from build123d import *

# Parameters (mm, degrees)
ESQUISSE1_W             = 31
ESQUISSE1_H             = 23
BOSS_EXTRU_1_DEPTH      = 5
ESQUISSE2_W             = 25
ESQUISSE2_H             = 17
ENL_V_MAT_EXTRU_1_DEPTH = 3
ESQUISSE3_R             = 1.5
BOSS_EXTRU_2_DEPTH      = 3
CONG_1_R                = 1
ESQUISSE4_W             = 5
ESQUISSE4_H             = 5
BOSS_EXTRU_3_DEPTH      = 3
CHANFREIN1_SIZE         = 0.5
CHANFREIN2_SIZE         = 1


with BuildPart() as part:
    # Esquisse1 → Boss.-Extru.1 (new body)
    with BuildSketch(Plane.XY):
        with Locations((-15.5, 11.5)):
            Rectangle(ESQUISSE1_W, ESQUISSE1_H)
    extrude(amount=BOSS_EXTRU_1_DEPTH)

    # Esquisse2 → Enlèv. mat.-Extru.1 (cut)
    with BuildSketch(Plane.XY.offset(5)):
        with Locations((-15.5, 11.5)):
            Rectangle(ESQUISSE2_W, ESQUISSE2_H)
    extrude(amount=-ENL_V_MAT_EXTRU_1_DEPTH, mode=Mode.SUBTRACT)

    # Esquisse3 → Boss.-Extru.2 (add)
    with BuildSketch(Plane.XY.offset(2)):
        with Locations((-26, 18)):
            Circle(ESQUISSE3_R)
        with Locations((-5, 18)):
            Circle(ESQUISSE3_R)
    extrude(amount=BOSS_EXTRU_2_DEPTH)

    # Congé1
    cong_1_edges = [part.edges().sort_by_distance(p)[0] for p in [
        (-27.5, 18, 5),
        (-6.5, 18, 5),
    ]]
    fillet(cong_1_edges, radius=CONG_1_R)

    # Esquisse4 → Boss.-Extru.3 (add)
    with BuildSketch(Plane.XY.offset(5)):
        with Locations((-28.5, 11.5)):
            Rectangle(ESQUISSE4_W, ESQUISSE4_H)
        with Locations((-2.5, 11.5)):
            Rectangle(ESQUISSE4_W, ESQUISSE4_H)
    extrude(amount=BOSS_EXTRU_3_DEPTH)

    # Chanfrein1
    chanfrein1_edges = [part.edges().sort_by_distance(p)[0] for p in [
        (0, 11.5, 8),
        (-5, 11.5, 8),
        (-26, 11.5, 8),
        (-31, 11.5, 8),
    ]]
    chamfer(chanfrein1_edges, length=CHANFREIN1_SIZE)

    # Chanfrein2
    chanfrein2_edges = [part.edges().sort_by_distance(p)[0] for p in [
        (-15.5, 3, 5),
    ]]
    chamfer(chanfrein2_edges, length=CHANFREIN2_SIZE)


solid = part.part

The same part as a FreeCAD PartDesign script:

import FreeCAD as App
import Part
import Sketcher

V = App.Vector


def edges_at(feature, points):
    """Names of the edges that pass closest to the given points."""
    edges = feature.Shape.Edges
    near = lambda p: min(range(len(edges)), key=lambda i: edges[i].distToShape(Part.Vertex(*p))[0])
    return sorted({f"Edge{near(p) + 1}" for p in points})

doc = App.newDocument("Part")
params = doc.addObject("Spreadsheet::Sheet", "Params")
for row, (alias, value) in enumerate([
    ("sketch1_width", "31 mm"),
    ("sketch1_height", "23 mm"),
    ("pad1_length", "5 mm"),
    ("sketch2_width", "25 mm"),
    ("sketch2_height", "17 mm"),
    ("pocket1_length", "3 mm"),
    ("sketch3_diameter", "3 mm"),
    ("pad2_length", "3 mm"),
    ("fillet_radius", "1 mm"),
    ("sketch4_width", "5 mm"),
    ("pad3_length", "3 mm"),
    ("chamfer_size", "0.5 mm"),
    ("chamfer2_size", "1 mm"),
], start=1):
    params.set(f"A{row}", alias)
    params.set(f"B{row}", "=" + value)
    params.setAlias(f"B{row}", alias)

body = doc.addObject("PartDesign::Body", "Body")

# Sketch on XY plane
sketch1 = body.newObject("Sketcher::SketchObject", "Sketch")
sketch1.AttachmentSupport = (doc.getObject("XY_Plane"), [""])
sketch1.MapMode = "FlatFace"
sketch1.addGeometry([
    Part.LineSegment(V(-31, 23, 0), V(-31, 0, 0)),
    Part.LineSegment(V(-31, 0, 0), V(0, 0, 0)),
    Part.LineSegment(V(0, 0, 0), V(0, 23, 0)),
    Part.LineSegment(V(0, 23, 0), V(-31, 23, 0)),
], False)
sketch1.addConstraint([
    Sketcher.Constraint("Coincident", 0, 2, 1, 1),
    Sketcher.Constraint("Coincident", 1, 2, 2, 1),
    Sketcher.Constraint("Coincident", 2, 2, 3, 1),
    Sketcher.Constraint("Coincident", 3, 2, 0, 1),
    Sketcher.Constraint("Vertical", 0),
    Sketcher.Constraint("Horizontal", 1),
    Sketcher.Constraint("Vertical", 2),
    Sketcher.Constraint("Horizontal", 3),
    Sketcher.Constraint("Coincident", 1, 2, -1, 1),
    Sketcher.Constraint("DistanceX", 1, 1, 1, 2, 31.0),
    Sketcher.Constraint("DistanceY", 0, 2, 0, 1, 23.0),
])
sketch1.setExpression("Constraints[9]", "Params.sketch1_width")
sketch1.setExpression("Constraints[10]", "Params.sketch1_height")
pad1 = body.newObject("PartDesign::Pad", "Pad")
pad1.Profile = sketch1
pad1.setExpression("Length", "Params.pad1_length")

# Sketch on XY plane
sketch2 = body.newObject("Sketcher::SketchObject", "Sketch001")
sketch2.AttachmentSupport = (doc.getObject("XY_Plane"), [""])
sketch2.MapMode = "FlatFace"
sketch2.AttachmentOffset = App.Placement(V(0, 0, 5), App.Rotation())
sketch2.addGeometry([
    Part.LineSegment(V(-28, 20, 0), V(-28, 3, 0)),
    Part.LineSegment(V(-28, 3, 0), V(-3, 3, 0)),
    Part.LineSegment(V(-3, 3, 0), V(-3, 20, 0)),
    Part.LineSegment(V(-3, 20, 0), V(-28, 20, 0)),
], False)
sketch2.addConstraint([
    Sketcher.Constraint("Coincident", 0, 2, 1, 1),
    Sketcher.Constraint("Coincident", 1, 2, 2, 1),
    Sketcher.Constraint("Coincident", 2, 2, 3, 1),
    Sketcher.Constraint("Coincident", 3, 2, 0, 1),
    Sketcher.Constraint("Vertical", 0),
    Sketcher.Constraint("Horizontal", 1),
    Sketcher.Constraint("Vertical", 2),
    Sketcher.Constraint("Horizontal", 3),
    Sketcher.Constraint("DistanceX", 1, 1, 1, 2, 25.0),
    Sketcher.Constraint("DistanceY", 0, 2, 0, 1, 17.0),
    Sketcher.Constraint("DistanceX", 0, 2, -1, 1, 28.0),
    Sketcher.Constraint("DistanceY", -1, 1, 0, 2, 3.0),
])
sketch2.setExpression("Constraints[8]", "Params.sketch2_width")
sketch2.setExpression("Constraints[9]", "Params.sketch2_height")
pocket1 = body.newObject("PartDesign::Pocket", "Pocket")
pocket1.Profile = sketch2
pocket1.setExpression("Length", "Params.pocket1_length")

# Sketch on XY plane
sketch3 = body.newObject("Sketcher::SketchObject", "Sketch002")
sketch3.AttachmentSupport = (doc.getObject("XY_Plane"), [""])
sketch3.MapMode = "FlatFace"
sketch3.AttachmentOffset = App.Placement(V(0, 0, 2), App.Rotation())
sketch3.addGeometry([
    Part.Circle(V(-26, 18, 0), V(0, 0, 1), 1.5),
    Part.Circle(V(-5, 18, 0), V(0, 0, 1), 1.5),
], False)
sketch3.addConstraint([
    Sketcher.Constraint("Equal", 0, 1),
    Sketcher.Constraint("Horizontal", 0, 3, 1, 3),
    Sketcher.Constraint("Diameter", 0, 3.0),
    Sketcher.Constraint("DistanceX", 0, 3, -1, 1, 26.0),
    Sketcher.Constraint("DistanceY", -1, 1, 0, 3, 18.0),
    Sketcher.Constraint("DistanceX", 1, 3, -1, 1, 5.0),
])
sketch3.setExpression("Constraints[2]", "Params.sketch3_diameter")
pad2 = body.newObject("PartDesign::Pad", "Pad001")
pad2.Profile = sketch3
pad2.setExpression("Length", "Params.pad2_length")
doc.recompute()

fillet = body.newObject("PartDesign::Fillet", "Fillet")
fillet.Base = (pad2, edges_at(pad2, [(-27.5, 18, 5), (-6.5, 18, 5)]))
fillet.setExpression("Radius", "Params.fillet_radius")

# Sketch on XY plane
sketch4 = body.newObject("Sketcher::SketchObject", "Sketch003")
sketch4.AttachmentSupport = (doc.getObject("XY_Plane"), [""])
sketch4.MapMode = "FlatFace"
sketch4.AttachmentOffset = App.Placement(V(0, 0, 5), App.Rotation())
sketch4.addGeometry([
    Part.LineSegment(V(-31, 14, 0), V(-31, 9, 0)),  # 0
    Part.LineSegment(V(-31, 9, 0), V(-26, 9, 0)),  # 1
    Part.LineSegment(V(-26, 9, 0), V(-26, 14, 0)),  # 2
    Part.LineSegment(V(-26, 14, 0), V(-31, 14, 0)),  # 3
    Part.LineSegment(V(-5, 14, 0), V(-5, 9, 0)),  # 4
    Part.LineSegment(V(-5, 9, 0), V(0, 9, 0)),  # 5
    Part.LineSegment(V(0, 9, 0), V(0, 14, 0)),  # 6
    Part.LineSegment(V(0, 14, 0), V(-5, 14, 0)),  # 7
], False)
sketch4.addConstraint([
    Sketcher.Constraint("Coincident", 0, 2, 1, 1),
    Sketcher.Constraint("Coincident", 1, 2, 2, 1),
    Sketcher.Constraint("Coincident", 2, 2, 3, 1),
    Sketcher.Constraint("Coincident", 3, 2, 0, 1),
    Sketcher.Constraint("Coincident", 4, 2, 5, 1),
    Sketcher.Constraint("Coincident", 5, 2, 6, 1),
    Sketcher.Constraint("Coincident", 6, 2, 7, 1),
    Sketcher.Constraint("Coincident", 7, 2, 4, 1),
    Sketcher.Constraint("Vertical", 0),
    Sketcher.Constraint("Horizontal", 1),
    Sketcher.Constraint("Vertical", 2),
    Sketcher.Constraint("Horizontal", 3),
    Sketcher.Constraint("Vertical", 4),
    Sketcher.Constraint("Horizontal", 5),
    Sketcher.Constraint("Vertical", 6),
    Sketcher.Constraint("Horizontal", 7),
    Sketcher.Constraint("PointOnObject", 5, 2, -2),
    Sketcher.Constraint("Horizontal", 1, 2, 4, 2),
    Sketcher.Constraint("Horizontal", 3, 2, 6, 2),
    Sketcher.Constraint("Equal", 3, 5),
    Sketcher.Constraint("Equal", 7, 0),
    Sketcher.Constraint("DistanceX", 1, 1, 1, 2, 5.0),
    Sketcher.Constraint("DistanceX", 0, 2, -1, 1, 31.0),
    Sketcher.Constraint("DistanceY", -1, 1, 0, 2, 9.0),
])
sketch4.setExpression("Constraints[21]", "Params.sketch4_width")
pad3 = body.newObject("PartDesign::Pad", "Pad002")
pad3.Profile = sketch4
pad3.setExpression("Length", "Params.pad3_length")
doc.recompute()

chamfer = body.newObject("PartDesign::Chamfer", "Chamfer")
chamfer.Base = (pad3, edges_at(pad3, [
    (0, 11.5, 8),
    (-5, 11.5, 8),
    (-26, 11.5, 8),
    (-31, 11.5, 8),
]))
chamfer.setExpression("Size", "Params.chamfer_size")
doc.recompute()

chamfer2 = body.newObject("PartDesign::Chamfer", "Chamfer001")
chamfer2.Base = (chamfer, edges_at(chamfer, [(-15.5, 3, 5)]))
chamfer2.setExpression("Size", "Params.chamfer2_size")

doc.recompute()
